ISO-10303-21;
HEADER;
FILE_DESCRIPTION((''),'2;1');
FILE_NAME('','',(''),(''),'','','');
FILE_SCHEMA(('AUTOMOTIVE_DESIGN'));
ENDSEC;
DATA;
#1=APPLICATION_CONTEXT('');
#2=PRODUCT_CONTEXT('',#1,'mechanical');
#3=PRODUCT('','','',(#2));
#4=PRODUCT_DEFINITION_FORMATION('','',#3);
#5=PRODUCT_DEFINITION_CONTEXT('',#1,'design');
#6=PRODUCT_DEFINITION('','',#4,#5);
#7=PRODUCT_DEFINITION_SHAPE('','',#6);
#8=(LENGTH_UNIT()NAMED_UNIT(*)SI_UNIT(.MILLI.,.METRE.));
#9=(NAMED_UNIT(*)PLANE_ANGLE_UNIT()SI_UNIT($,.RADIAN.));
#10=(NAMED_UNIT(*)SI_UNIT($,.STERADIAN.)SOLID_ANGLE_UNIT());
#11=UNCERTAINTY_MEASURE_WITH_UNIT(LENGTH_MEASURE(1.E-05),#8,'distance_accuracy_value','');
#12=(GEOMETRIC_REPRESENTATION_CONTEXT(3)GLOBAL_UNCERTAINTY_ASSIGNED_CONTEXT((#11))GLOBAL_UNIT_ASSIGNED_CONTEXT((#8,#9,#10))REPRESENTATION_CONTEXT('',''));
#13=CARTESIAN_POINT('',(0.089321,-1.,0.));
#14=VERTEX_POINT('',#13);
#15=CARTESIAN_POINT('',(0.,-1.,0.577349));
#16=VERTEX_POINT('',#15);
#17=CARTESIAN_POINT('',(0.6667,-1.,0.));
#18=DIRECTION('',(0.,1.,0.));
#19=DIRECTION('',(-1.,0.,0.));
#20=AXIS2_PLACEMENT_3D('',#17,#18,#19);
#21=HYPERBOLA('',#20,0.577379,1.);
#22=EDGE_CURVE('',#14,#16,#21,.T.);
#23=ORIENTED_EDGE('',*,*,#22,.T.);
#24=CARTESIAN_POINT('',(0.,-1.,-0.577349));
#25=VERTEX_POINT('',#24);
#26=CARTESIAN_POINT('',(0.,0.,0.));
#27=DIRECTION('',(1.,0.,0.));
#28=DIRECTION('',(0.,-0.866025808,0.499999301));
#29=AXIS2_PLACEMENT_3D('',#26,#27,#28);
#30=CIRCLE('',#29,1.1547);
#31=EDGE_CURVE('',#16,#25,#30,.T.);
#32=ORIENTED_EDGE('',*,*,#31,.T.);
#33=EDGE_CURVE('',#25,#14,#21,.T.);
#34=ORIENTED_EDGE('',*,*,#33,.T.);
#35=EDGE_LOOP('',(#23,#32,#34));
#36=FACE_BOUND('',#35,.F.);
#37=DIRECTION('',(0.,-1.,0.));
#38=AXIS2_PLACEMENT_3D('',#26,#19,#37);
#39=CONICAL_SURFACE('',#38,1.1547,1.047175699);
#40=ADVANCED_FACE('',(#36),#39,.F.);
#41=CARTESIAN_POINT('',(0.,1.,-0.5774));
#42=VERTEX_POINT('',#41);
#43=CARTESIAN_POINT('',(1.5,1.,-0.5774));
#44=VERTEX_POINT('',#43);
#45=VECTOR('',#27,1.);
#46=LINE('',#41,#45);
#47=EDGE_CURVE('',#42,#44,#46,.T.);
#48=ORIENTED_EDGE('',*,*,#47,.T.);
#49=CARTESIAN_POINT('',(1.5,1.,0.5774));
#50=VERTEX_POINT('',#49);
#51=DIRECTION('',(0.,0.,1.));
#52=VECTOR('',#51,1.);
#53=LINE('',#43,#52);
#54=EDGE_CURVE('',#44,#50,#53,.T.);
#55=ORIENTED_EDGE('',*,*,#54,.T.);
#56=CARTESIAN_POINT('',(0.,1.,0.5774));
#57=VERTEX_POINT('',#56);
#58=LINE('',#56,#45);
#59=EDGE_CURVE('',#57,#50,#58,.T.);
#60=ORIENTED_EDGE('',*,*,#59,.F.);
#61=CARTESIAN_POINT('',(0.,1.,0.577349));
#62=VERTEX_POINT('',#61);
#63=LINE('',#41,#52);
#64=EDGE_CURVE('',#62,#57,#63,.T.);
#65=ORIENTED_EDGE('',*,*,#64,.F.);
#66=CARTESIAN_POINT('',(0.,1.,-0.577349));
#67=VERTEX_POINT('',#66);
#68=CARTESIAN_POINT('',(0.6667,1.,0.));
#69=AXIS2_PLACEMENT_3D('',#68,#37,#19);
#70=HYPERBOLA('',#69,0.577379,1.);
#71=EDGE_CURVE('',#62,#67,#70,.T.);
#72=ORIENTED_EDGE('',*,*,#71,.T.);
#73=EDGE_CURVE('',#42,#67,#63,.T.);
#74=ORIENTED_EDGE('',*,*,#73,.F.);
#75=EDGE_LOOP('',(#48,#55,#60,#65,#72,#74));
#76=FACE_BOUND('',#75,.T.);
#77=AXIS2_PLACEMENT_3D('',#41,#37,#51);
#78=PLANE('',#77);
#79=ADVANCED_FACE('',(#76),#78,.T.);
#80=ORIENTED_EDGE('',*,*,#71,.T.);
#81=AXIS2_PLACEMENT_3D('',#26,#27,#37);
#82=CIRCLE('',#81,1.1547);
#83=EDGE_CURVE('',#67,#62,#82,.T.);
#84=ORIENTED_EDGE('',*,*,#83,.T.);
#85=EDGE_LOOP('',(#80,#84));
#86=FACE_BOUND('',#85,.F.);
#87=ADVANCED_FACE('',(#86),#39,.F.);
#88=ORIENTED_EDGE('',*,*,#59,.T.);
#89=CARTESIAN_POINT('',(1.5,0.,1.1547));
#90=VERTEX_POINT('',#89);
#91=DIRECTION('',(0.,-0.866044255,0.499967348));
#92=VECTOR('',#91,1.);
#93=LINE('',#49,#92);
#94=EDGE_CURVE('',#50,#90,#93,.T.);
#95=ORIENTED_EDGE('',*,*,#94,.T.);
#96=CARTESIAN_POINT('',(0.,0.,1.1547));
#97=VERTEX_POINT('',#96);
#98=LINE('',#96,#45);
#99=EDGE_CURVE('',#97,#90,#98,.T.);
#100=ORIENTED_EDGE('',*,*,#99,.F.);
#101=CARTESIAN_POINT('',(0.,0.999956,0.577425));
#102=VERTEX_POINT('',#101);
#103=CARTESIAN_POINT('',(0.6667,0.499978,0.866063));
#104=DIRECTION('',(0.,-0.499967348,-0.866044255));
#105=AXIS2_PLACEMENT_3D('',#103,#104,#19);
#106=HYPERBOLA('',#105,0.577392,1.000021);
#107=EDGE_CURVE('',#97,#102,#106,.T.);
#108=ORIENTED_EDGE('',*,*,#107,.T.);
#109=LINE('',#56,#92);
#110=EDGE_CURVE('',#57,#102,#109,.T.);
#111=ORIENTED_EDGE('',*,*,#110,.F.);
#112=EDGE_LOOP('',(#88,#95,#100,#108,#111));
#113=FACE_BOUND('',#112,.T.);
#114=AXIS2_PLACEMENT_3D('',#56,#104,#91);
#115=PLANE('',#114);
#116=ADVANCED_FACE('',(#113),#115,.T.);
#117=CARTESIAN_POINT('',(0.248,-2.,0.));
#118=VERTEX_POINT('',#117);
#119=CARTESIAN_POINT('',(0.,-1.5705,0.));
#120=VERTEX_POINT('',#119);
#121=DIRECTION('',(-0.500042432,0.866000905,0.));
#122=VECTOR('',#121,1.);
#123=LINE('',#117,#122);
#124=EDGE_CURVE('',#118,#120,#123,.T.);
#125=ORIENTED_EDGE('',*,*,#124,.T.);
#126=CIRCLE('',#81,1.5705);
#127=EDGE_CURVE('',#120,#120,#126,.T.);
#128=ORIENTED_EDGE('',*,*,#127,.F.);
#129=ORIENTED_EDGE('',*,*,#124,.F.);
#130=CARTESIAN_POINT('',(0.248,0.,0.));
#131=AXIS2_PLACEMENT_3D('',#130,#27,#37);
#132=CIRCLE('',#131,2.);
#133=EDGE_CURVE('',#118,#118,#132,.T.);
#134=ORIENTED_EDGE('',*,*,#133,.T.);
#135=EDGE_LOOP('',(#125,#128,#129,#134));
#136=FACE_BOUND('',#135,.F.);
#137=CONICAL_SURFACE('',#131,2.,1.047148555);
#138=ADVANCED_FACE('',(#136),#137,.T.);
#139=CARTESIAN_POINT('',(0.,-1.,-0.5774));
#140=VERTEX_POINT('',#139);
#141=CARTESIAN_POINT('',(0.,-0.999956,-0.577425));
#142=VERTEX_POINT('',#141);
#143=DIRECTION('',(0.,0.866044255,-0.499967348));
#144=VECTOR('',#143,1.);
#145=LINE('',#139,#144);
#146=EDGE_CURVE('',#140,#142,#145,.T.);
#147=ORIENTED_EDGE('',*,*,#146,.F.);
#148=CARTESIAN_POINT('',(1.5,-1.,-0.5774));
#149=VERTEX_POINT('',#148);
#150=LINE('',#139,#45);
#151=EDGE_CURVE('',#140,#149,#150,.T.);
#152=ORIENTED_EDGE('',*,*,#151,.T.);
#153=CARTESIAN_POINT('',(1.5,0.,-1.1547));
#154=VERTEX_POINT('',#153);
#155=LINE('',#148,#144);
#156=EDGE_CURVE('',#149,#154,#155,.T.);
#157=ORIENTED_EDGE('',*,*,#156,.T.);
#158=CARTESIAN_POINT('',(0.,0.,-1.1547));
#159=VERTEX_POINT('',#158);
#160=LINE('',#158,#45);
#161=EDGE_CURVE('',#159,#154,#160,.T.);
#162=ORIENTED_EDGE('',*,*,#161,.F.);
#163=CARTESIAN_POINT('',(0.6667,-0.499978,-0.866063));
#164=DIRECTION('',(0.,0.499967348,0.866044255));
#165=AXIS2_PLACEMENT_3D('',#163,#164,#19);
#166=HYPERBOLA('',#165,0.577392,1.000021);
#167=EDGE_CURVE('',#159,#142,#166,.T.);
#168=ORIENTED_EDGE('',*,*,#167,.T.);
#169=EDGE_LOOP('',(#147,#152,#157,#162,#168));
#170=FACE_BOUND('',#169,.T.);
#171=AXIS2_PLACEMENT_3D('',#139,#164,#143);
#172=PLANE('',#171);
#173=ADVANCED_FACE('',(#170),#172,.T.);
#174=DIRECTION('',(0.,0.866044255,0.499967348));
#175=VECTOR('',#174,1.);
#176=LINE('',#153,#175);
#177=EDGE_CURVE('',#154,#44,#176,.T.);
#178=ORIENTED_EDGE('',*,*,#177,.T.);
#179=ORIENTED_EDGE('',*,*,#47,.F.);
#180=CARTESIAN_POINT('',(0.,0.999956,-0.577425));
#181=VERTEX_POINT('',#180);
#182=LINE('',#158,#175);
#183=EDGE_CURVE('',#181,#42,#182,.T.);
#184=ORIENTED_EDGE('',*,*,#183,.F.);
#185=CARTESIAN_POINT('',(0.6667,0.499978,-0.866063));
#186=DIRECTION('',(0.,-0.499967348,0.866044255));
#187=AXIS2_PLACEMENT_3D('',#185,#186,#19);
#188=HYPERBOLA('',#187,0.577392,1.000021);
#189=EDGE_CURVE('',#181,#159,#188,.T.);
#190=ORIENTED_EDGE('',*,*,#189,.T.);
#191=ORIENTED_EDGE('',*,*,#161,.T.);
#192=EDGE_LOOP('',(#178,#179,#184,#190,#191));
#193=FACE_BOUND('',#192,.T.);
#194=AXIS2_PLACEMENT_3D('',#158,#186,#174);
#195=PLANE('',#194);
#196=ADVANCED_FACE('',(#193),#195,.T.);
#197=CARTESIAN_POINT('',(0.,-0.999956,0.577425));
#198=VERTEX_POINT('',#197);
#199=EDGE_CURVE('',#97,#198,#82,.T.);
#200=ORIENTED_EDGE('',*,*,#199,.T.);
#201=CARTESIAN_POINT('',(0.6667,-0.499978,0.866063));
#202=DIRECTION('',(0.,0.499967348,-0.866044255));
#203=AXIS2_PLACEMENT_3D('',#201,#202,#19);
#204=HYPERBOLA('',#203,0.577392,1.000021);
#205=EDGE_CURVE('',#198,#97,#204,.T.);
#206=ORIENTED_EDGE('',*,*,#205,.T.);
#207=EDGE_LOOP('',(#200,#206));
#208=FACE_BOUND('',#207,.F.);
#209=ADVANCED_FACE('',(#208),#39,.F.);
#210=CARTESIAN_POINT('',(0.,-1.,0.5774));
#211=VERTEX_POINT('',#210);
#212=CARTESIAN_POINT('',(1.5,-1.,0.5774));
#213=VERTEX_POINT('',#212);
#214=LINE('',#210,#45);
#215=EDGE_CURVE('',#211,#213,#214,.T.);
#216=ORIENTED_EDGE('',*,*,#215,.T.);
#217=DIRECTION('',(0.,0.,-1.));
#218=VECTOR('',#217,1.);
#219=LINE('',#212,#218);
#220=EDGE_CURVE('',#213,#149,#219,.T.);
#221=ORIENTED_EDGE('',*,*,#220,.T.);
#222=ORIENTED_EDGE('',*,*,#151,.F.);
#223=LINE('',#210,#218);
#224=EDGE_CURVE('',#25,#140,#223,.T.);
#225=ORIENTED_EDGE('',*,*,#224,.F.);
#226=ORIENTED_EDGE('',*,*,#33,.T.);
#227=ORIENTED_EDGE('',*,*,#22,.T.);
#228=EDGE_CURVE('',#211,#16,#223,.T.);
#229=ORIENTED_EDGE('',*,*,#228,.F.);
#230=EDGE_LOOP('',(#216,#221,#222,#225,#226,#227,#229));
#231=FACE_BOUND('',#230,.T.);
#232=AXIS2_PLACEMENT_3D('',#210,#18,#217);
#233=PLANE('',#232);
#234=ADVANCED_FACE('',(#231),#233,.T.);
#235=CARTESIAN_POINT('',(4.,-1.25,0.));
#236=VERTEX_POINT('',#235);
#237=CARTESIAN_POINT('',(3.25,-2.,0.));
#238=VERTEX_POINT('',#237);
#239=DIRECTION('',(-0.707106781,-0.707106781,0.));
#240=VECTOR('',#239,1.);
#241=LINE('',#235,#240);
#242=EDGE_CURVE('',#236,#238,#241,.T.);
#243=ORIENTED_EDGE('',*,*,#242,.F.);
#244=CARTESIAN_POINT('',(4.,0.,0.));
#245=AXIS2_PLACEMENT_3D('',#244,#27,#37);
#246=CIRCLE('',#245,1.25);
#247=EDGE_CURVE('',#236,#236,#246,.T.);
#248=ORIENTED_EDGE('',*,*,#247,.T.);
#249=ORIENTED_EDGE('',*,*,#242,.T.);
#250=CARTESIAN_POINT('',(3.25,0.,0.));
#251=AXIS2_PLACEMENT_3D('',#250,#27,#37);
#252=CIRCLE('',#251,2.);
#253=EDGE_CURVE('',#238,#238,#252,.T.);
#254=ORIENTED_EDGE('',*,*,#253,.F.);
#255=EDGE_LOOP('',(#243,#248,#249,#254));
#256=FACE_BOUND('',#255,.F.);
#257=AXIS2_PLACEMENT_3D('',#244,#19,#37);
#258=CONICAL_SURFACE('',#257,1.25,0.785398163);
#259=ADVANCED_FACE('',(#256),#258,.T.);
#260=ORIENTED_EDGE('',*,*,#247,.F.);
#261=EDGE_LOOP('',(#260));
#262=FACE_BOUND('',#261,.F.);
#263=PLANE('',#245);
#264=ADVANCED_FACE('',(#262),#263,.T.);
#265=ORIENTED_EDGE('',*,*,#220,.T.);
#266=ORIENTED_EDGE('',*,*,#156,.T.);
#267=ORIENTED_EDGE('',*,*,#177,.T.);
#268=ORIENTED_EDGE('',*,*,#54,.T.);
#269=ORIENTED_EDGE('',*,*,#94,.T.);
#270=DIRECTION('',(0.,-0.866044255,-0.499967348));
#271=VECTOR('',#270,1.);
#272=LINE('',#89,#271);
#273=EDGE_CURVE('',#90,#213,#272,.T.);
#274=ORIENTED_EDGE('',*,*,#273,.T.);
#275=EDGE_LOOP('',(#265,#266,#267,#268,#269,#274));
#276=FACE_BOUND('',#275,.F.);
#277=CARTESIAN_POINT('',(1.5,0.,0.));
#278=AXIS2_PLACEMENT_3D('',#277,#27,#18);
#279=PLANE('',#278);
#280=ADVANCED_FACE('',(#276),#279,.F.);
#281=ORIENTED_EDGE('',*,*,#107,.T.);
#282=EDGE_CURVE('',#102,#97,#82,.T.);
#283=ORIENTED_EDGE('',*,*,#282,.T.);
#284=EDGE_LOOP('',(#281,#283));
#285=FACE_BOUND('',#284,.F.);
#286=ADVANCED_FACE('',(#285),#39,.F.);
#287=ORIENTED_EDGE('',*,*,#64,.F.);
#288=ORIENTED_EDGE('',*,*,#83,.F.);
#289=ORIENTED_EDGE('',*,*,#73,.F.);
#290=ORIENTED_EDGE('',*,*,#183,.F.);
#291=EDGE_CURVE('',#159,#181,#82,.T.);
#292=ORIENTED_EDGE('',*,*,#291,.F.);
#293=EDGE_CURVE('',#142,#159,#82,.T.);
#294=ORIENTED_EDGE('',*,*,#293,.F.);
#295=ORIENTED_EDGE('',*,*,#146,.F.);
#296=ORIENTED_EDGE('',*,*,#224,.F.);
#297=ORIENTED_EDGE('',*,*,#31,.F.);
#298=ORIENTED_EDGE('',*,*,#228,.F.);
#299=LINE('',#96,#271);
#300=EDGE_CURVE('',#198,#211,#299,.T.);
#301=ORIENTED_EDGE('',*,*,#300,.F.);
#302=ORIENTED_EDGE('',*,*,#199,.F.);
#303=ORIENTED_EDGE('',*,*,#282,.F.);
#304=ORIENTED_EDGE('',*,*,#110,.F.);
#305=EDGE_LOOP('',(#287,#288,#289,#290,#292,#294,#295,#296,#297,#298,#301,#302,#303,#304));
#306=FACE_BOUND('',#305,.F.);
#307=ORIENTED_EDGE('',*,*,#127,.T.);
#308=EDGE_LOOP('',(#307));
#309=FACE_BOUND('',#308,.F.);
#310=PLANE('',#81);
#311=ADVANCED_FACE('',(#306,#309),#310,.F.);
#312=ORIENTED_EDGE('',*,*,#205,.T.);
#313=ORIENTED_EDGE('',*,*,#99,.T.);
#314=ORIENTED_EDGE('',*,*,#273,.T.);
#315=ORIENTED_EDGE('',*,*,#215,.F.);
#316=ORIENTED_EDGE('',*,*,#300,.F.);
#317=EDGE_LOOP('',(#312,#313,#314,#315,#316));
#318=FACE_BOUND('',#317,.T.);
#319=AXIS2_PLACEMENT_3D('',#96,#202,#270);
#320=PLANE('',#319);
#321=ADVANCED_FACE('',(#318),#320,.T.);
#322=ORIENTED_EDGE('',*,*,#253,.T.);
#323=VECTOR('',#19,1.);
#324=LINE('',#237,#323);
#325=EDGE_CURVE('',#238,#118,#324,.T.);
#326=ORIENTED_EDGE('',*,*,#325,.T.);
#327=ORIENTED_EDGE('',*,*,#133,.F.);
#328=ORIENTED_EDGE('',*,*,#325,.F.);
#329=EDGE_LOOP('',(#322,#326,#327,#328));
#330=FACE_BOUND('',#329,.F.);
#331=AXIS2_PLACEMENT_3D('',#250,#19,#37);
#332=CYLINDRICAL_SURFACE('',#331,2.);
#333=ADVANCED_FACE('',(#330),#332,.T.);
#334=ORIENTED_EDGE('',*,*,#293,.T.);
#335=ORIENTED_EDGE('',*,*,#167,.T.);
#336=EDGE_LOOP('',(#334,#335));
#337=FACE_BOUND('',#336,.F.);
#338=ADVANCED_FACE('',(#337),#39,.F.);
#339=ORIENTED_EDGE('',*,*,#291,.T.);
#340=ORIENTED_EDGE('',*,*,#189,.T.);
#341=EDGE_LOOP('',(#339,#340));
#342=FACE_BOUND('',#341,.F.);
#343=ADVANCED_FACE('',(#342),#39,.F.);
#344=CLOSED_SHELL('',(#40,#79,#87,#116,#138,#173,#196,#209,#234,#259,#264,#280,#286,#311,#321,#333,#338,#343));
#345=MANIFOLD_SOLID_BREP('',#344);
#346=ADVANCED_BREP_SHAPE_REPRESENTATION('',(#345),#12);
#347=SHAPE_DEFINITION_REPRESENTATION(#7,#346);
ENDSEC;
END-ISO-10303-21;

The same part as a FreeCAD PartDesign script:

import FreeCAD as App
import Part
import Sketcher
Q = App.Units.Quantity

doc = App.newDocument("Part")
body = doc.addObject("PartDesign::Body", "Body")

sketch1 = doc.addObject("Sketcher::SketchObject", "Sketch")
body.addObject(sketch1)
sketch1.AttachmentSupport = (doc.XY_Plane, [""])
sketch1.MapMode = "FlatFace"
sketch1.addGeometry([
    Part.LineSegment(App.Vector(4, 0, 0), App.Vector(0.6667, 0, 0)),
    Part.LineSegment(App.Vector(0.6667, 0, 0), App.Vector(0, -1.1547, 0)),
    Part.LineSegment(App.Vector(0, -1.1547, 0), App.Vector(0, -1.5705, 0)),
    Part.LineSegment(App.Vector(0, -1.5705, 0), App.Vector(0.248, -2, 0)),
    Part.LineSegment(App.Vector(0.248, -2, 0), App.Vector(3.25, -2, 0)),
    Part.LineSegment(App.Vector(3.25, -2, 0), App.Vector(4, -1.25, 0)),
    Part.LineSegment(App.Vector(4, -1.25, 0), App.Vector(4, 0, 0)),
], False)
sketch1.addConstraint([
    Sketcher.Constraint("Coincident", 0, 2, 1, 1),
    Sketcher.Constraint("Coincident", 1, 2, 2, 1),
    Sketcher.Constraint("Coincident", 2, 2, 3, 1),
    Sketcher.Constraint("Coincident", 3, 2, 4, 1),
    Sketcher.Constraint("Coincident", 4, 2, 5, 1),
    Sketcher.Constraint("Coincident", 5, 2, 6, 1),
    Sketcher.Constraint("Coincident", 6, 2, 0, 1),
    Sketcher.Constraint("Horizontal", 0),
    Sketcher.Constraint("Vertical", 2),
    Sketcher.Constraint("Horizontal", 4),
    Sketcher.Constraint("Vertical", 6),
    Sketcher.Constraint("PointOnObject", 0, 2, -1),
    Sketcher.Constraint("PointOnObject", 1, 2, -2),
    Sketcher.Constraint("Angle", 5, Q("45 deg")),
    Sketcher.Constraint("DistanceY", 3, 2, -1, 1, Q("2 mm")),
    Sketcher.Constraint("DistanceX", -1, 1, 5, 2, Q("4 mm")),
    Sketcher.Constraint("DistanceY", 6, 1, 6, 2, Q("1.25 mm")),
    Sketcher.Constraint("DistanceX", 4, 1, 4, 2, Q("3.002 mm")),
    Sketcher.Constraint("Distance", 3, Q("0.496 mm")),
    Sketcher.Constraint("DistanceX", 0, 2, 0, 1, Q("3.3333 mm")),
    Sketcher.Constraint("DistanceY", 2, 2, 2, 1, Q("0.4158 mm")),
])
revolution = doc.addObject("PartDesign::Revolution", "Revolution")
body.addObject(revolution)
revolution.Profile = sketch1
revolution.ReferenceAxis = (sketch1, ["H_Axis"])
revolution.Angle = 360

sketch2 = doc.addObject("Sketcher::SketchObject", "Sketch001")
body.addObject(sketch2)
sketch2.AttachmentSupport = (doc.YZ_Plane, [""])
sketch2.MapMode = "FlatFace"
sketch2.addGeometry([
    Part.LineSegment(App.Vector(1, 0.5774, 0), App.Vector(0, 1.1547, 0)),
    Part.LineSegment(App.Vector(0, 1.1547, 0), App.Vector(-1, 0.5774, 0)),
    Part.LineSegment(App.Vector(-1, 0.5774, 0), App.Vector(-1, -0.5774, 0)),
    Part.LineSegment(App.Vector(-1, -0.5774, 0), App.Vector(0, -1.1547, 0)),
    Part.LineSegment(App.Vector(0, -1.1547, 0), App.Vector(1, -0.5774, 0)),
    Part.LineSegment(App.Vector(1, -0.5774, 0), App.Vector(1, 0.5774, 0)),
], False)
sketch2.addConstraint([
    Sketcher.Constraint("Coincident", 0, 2, 1, 1),
    Sketcher.Constraint("Coincident", 1, 2, 2, 1),
    Sketcher.Constraint("Coincident", 2, 2, 3, 1),
    Sketcher.Constraint("Coincident", 3, 2, 4, 1),
    Sketcher.Constraint("Coincident", 4, 2, 5, 1),
    Sketcher.Constraint("Coincident", 5, 2, 0, 1),
    Sketcher.Constraint("Vertical", 2),
    Sketcher.Constraint("Vertical", 5),
    Sketcher.Constraint("Symmetric", 0, 2, 3, 2, -1, 1),
    Sketcher.Constraint("Symmetric", 1, 2, 4, 2, -1, 1),
    Sketcher.Constraint("PointOnObject", 0, 2, -2),
    Sketcher.Constraint("Parallel", 0, 3),
    Sketcher.Constraint("Horizontal", 2, 2, 4, 2),
    Sketcher.Constraint("DistanceX", 1, 2, -1, 1, Q("1 mm")),
    Sketcher.Constraint("DistanceY", 2, 2, 2, 1, Q("1.1548 mm")),
    Sketcher.Constraint("DistanceY", 2, 2, 0, 2, Q("1.732 mm")),
])
pocket1 = doc.addObject("PartDesign::Pocket", "Pocket")
body.addObject(pocket1)
pocket1.Profile = sketch2
pocket1.Length = 1.5
pocket1.Reversed = True

doc.recompute()
